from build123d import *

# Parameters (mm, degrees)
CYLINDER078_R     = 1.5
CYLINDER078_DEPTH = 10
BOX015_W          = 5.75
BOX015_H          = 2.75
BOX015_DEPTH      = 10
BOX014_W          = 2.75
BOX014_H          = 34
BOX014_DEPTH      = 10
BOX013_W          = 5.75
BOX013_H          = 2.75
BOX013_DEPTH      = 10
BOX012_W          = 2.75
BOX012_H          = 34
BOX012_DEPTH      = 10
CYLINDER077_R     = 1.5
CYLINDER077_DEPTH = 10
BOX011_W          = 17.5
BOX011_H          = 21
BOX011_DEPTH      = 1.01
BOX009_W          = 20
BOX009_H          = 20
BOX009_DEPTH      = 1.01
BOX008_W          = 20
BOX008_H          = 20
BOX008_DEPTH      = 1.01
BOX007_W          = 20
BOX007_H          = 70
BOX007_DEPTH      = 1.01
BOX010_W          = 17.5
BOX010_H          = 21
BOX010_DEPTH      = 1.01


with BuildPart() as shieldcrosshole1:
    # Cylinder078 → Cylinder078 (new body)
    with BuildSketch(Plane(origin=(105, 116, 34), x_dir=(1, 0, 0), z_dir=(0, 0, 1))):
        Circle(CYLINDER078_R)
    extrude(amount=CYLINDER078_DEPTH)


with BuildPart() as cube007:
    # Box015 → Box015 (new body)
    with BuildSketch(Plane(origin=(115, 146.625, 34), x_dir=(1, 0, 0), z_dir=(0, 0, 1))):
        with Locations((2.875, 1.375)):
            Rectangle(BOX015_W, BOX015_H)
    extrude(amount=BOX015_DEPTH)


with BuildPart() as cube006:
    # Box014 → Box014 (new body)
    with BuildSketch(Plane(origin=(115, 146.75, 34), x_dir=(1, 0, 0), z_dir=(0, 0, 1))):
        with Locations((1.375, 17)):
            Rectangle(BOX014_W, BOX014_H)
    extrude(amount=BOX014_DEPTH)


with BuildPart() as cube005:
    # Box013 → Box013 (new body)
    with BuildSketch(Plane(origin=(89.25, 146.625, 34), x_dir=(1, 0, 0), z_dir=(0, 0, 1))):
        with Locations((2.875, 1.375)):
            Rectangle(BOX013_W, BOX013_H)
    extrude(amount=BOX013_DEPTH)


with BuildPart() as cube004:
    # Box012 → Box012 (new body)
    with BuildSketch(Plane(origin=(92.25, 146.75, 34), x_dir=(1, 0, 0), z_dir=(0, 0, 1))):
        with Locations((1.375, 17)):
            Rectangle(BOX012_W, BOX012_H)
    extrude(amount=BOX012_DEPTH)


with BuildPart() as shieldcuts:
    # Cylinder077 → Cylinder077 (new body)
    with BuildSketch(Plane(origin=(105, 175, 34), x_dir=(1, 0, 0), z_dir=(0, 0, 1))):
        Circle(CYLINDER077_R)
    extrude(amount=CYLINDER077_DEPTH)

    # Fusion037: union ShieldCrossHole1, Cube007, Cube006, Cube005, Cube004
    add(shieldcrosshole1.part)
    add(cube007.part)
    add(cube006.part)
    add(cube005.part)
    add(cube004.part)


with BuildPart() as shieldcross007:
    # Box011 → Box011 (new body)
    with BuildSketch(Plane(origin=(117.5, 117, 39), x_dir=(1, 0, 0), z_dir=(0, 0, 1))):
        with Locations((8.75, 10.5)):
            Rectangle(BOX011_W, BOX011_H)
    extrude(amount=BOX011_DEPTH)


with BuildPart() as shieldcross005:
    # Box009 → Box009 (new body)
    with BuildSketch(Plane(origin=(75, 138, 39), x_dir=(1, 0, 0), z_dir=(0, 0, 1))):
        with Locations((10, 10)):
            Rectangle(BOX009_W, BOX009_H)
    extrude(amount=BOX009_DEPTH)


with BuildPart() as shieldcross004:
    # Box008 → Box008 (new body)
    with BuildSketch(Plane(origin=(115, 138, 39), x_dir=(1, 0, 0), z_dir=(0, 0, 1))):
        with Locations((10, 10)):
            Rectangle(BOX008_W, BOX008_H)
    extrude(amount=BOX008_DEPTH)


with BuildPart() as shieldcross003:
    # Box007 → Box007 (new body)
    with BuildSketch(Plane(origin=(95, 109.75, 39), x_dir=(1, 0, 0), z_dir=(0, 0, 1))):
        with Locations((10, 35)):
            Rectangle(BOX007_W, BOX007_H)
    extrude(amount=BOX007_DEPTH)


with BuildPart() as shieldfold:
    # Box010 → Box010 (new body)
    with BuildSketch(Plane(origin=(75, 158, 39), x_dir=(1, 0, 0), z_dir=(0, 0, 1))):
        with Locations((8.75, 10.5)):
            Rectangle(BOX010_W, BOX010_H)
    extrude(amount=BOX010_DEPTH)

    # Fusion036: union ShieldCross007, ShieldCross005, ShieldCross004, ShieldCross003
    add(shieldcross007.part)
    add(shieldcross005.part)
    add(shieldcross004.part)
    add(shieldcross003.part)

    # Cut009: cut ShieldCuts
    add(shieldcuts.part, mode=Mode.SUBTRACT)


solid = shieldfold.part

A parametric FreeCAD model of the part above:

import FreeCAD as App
import Part
import Sketcher
Q = App.Units.Quantity

doc = App.newDocument("Part")
body = doc.addObject("PartDesign::Body", "Body")

# Sketch on XY plane
sketch1 = body.newObject("Sketcher::SketchObject", "Sketch")
sketch1.AttachmentSupport = (doc.getObject("XY_Plane"), [""])
sketch1.MapMode = "FlatFace"
sketch1.AttachmentOffset = App.Placement(App.Vector(0, 0, 34), App.Rotation())
sketch1.addGeometry(Part.Circle(App.Vector(105, 116, 0), App.Vector(0, 0, 1), 1.5), False)
sketch1.addConstraint(Sketcher.Constraint("Diameter", 0, Q("3 mm")))
sketch1.addConstraint(Sketcher.Constraint("DistanceX", -1, 1, 0, 3, Q("105 mm")))
sketch1.addConstraint(Sketcher.Constraint("DistanceY", -1, 1, 0, 3, Q("116 mm")))
pad1 = body.newObject("PartDesign::Pad", "Pad")
pad1.Profile = sketch1
pad1.Length = 10
body2 = doc.addObject("PartDesign::Body", "Body001")

# Sketch on XY plane
sketch2 = body2.newObject("Sketcher::SketchObject", "Sketch001")
sketch2.AttachmentSupport = (doc.getObject("XY_Plane001"), [""])
sketch2.MapMode = "FlatFace"
sketch2.AttachmentOffset = App.Placement(App.Vector(0, 0, 34), App.Rotation())
sketch2.addGeometry(Part.LineSegment(App.Vector(115, 149.4, 0), App.Vector(115, 146.6, 0)), False)
sketch2.addGeometry(Part.LineSegment(App.Vector(115, 146.6, 0), App.Vector(120.8, 146.6, 0)), False)
sketch2.addGeometry(Part.LineSegment(App.Vector(120.8, 146.6, 0), App.Vector(120.8, 149.4, 0)), False)
sketch2.addGeometry(Part.LineSegment(App.Vector(120.8, 149.4, 0), App.Vector(115, 149.4, 0)), False)
sketch2.addConstraint(Sketcher.Constraint("Coincident", 0, 2, 1, 1))
sketch2.addConstraint(Sketcher.Constraint("Coincident", 1, 2, 2, 1))
sketch2.addConstraint(Sketcher.Constraint("Coincident", 2, 2, 3, 1))
sketch2.addConstraint(Sketcher.Constraint("Coincident", 3, 2, 0, 1))
sketch2.addConstraint(Sketcher.Constraint("Vertical", 0))
sketch2.addConstraint(Sketcher.Constraint("Horizontal", 1))
sketch2.addConstraint(Sketcher.Constraint("Vertical", 2))
sketch2.addConstraint(Sketcher.Constraint("Horizontal", 3))
sketch2.addConstraint(Sketcher.Constraint("DistanceX", -1, 1, 0, 2, Q("115 mm")))
sketch2.addConstraint(Sketcher.Constraint("DistanceX", 1, 1, 1, 2, Q("5.75 mm")))
sketch2.addConstraint(Sketcher.Constraint("DistanceY", 0, 2, 0, 1, Q("2.75 mm")))
sketch2.addConstraint(Sketcher.Constraint("DistanceY", -1, 1, 0, 2, Q("146.625 mm")))
pad2 = body2.newObject("PartDesign::Pad", "Pad001")
pad2.Profile = sketch2
pad2.Length = 10
body3 = doc.addObject("PartDesign::Body", "Body002")

# Sketch on XY plane
sketch3 = body3.newObject("Sketcher::SketchObject", "Sketch002")
sketch3.AttachmentSupport = (doc.getObject("XY_Plane002"), [""])
sketch3.MapMode = "FlatFace"
sketch3.AttachmentOffset = App.Placement(App.Vector(0, 0, 34), App.Rotation())
sketch3.addGeometry(Part.LineSegment(App.Vector(115, 180.8, 0), App.Vector(115, 146.8, 0)), False)
sketch3.addGeometry(Part.LineSegment(App.Vector(115, 146.8, 0), App.Vector(117.8, 146.8, 0)), False)
sketch3.addGeometry(Part.LineSegment(App.Vector(117.8, 146.8, 0), App.Vector(117.8, 180.8, 0)), False)
sketch3.addGeometry(Part.LineSegment(App.Vector(117.8, 180.8, 0), App.Vector(115, 180.8, 0)), False)
sketch3.addConstraint(Sketcher.Constraint("Coincident", 0, 2, 1, 1))
sketch3.addConstraint(Sketcher.Constraint("Coincident", 1, 2, 2, 1))
sketch3.addConstraint(Sketcher.Constraint("Coincident", 2, 2, 3, 1))
sketch3.addConstraint(Sketcher.Constraint("Coincident", 3, 2, 0, 1))
sketch3.addConstraint(Sketcher.Constraint("Vertical", 0))
sketch3.addConstraint(Sketcher.Constraint("Horizontal", 1))
sketch3.addConstraint(Sketcher.Constraint("Vertical", 2))
sketch3.addConstraint(Sketcher.Constraint("Horizontal", 3))
sketch3.addConstraint(Sketcher.Constraint("DistanceY", 0, 2, 0, 1, Q("34 mm")))
sketch3.addConstraint(Sketcher.Constraint("DistanceX", -1, 1, 0, 2, Q("115 mm")))
sketch3.addConstraint(Sketcher.Constraint("DistanceX", 1, 1, 1, 2, Q("2.75 mm")))
sketch3.addConstraint(Sketcher.Constraint("DistanceY", -1, 1, 0, 2, Q("146.75 mm")))
pad3 = body3.newObject("PartDesign::Pad", "Pad002")
pad3.Profile = sketch3
pad3.Length = 10
body4 = doc.addObject("PartDesign::Body", "Body003")

# Sketch on XY plane
sketch4 = body4.newObject("Sketcher::SketchObject", "Sketch003")
sketch4.AttachmentSupport = (doc.getObject("XY_Plane003"), [""])
sketch4.MapMode = "FlatFace"
sketch4.AttachmentOffset = App.Placement(App.Vector(0, 0, 34), App.Rotation())
sketch4.addGeometry(Part.LineSegment(App.Vector(89.2, 149.4, 0), App.Vector(89.2, 146.6, 0)), False)
sketch4.addGeometry(Part.LineSegment(App.Vector(89.2, 146.6, 0), App.Vector(95, 146.6, 0)), False)
sketch4.addGeometry(Part.LineSegment(App.Vector(95, 146.6, 0), App.Vector(95, 149.4, 0)), False)
sketch4.addGeometry(Part.LineSegment(App.Vector(95, 149.4, 0), App.Vector(89.2, 149.4, 0)), False)
sketch4.addConstraint(Sketcher.Constraint("Coincident", 0, 2, 1, 1))
sketch4.addConstraint(Sketcher.Constraint("Coincident", 1, 2, 2, 1))
sketch4.addConstraint(Sketcher.Constraint("Coincident", 2, 2, 3, 1))
sketch4.addConstraint(Sketcher.Constraint("Coincident", 3, 2, 0, 1))
sketch4.addConstraint(Sketcher.Constraint("Vertical", 0))
sketch4.addConstraint(Sketcher.Constraint("Horizontal", 1))
sketch4.addConstraint(Sketcher.Constraint("Vertical", 2))
sketch4.addConstraint(Sketcher.Constraint("Horizontal", 3))
sketch4.addConstraint(Sketcher.Constraint("DistanceX", -1, 1, 1, 2, Q("95 mm")))
sketch4.addConstraint(Sketcher.Constraint("DistanceX", 1, 1, 1, 2, Q("5.75 mm")))
sketch4.addConstraint(Sketcher.Constraint("DistanceY", 0, 2, 0, 1, Q("2.75 mm")))
sketch4.addConstraint(Sketcher.Constraint("DistanceY", -1, 1, 0, 2, Q("146.625 mm")))
pad4 = body4.newObject("PartDesign::Pad", "Pad003")
pad4.Profile = sketch4
pad4.Length = 10
body5 = doc.addObject("PartDesign::Body", "Body004")

# Sketch on XY plane
sketch5 = body5.newObject("Sketcher::SketchObject", "Sketch004")
sketch5.AttachmentSupport = (doc.getObject("XY_Plane004"), [""])
sketch5.MapMode = "FlatFace"
sketch5.AttachmentOffset = App.Placement(App.Vector(0, 0, 34), App.Rotation())
sketch5.addGeometry(Part.LineSegment(App.Vector(92.2, 180.8, 0), App.Vector(92.2, 146.8, 0)), False)
sketch5.addGeometry(Part.LineSegment(App.Vector(92.2, 146.8, 0), App.Vector(95, 146.8, 0)), False)
sketch5.addGeometry(Part.LineSegment(App.Vector(95, 146.8, 0), App.Vector(95, 180.8, 0)), False)
sketch5.addGeometry(Part.LineSegment(App.Vector(95, 180.8, 0), App.Vector(92.2, 180.8, 0)), False)
sketch5.addConstraint(Sketcher.Constraint("Coincident", 0, 2, 1, 1))
sketch5.addConstraint(Sketcher.Constraint("Coincident", 1, 2, 2, 1))
sketch5.addConstraint(Sketcher.Constraint("Coincident", 2, 2, 3, 1))
sketch5.addConstraint(Sketcher.Constraint("Coincident", 3, 2, 0, 1))
sketch5.addConstraint(Sketcher.Constraint("Vertical", 0))
sketch5.addConstraint(Sketcher.Constraint("Horizontal", 1))
sketch5.addConstraint(Sketcher.Constraint("Vertical", 2))
sketch5.addConstraint(Sketcher.Constraint("Horizontal", 3))
sketch5.addConstraint(Sketcher.Constraint("DistanceY", 0, 2, 0, 1, Q("34 mm")))
sketch5.addConstraint(Sketcher.Constraint("DistanceX", -1, 1, 1, 2, Q("95 mm")))
sketch5.addConstraint(Sketcher.Constraint("DistanceX", 1, 1, 1, 2, Q("2.75 mm")))
sketch5.addConstraint(Sketcher.Constraint("DistanceY", -1, 1, 0, 2, Q("146.75 mm")))
pad5 = body5.newObject("PartDesign::Pad", "Pad004")
pad5.Profile = sketch5
pad5.Length = 10
body6 = doc.addObject("PartDesign::Body", "Body005")
body6.AllowCompound = True

# Sketch on XY plane
sketch6 = body6.newObject("Sketcher::SketchObject", "Sketch005")
sketch6.AttachmentSupport = (doc.getObject("XY_Plane005"), [""])
sketch6.MapMode = "FlatFace"
sketch6.AttachmentOffset = App.Placement(App.Vector(0, 0, 34), App.Rotation())
sketch6.addGeometry(Part.Circle(App.Vector(105, 175, 0), App.Vector(0, 0, 1), 1.5), False)
sketch6.addConstraint(Sketcher.Constraint("Diameter", 0, Q("3 mm")))
sketch6.addConstraint(Sketcher.Constraint("DistanceX", -1, 1, 0, 3, Q("105 mm")))
sketch6.addConstraint(Sketcher.Constraint("DistanceY", -1, 1, 0, 3, Q("175 mm")))
pad6 = body6.newObject("PartDesign::Pad", "Pad005")
pad6.Profile = sketch6
pad6.Length = 10
doc.recompute()

boolean = body6.newObject("PartDesign::Boolean", "Boolean")
boolean.Type = "Fuse"
boolean.addObjects([body])
doc.recompute()

boolean2 = body6.newObject("PartDesign::Boolean", "Boolean001")
boolean2.Type = "Fuse"
boolean2.addObjects([body2])
doc.recompute()

boolean3 = body6.newObject("PartDesign::Boolean", "Boolean002")
boolean3.Type = "Fuse"
boolean3.addObjects([body3])
doc.recompute()

boolean4 = body6.newObject("PartDesign::Boolean", "Boolean003")
boolean4.Type = "Fuse"
boolean4.addObjects([body4])
doc.recompute()

boolean5 = body6.newObject("PartDesign::Boolean", "Boolean004")
boolean5.Type = "Fuse"
boolean5.addObjects([body5])
body7 = doc.addObject("PartDesign::Body", "Body006")

# Sketch on XY plane
sketch7 = body7.newObject("Sketcher::SketchObject", "Sketch006")
sketch7.AttachmentSupport = (doc.getObject("XY_Plane006"), [""])
sketch7.MapMode = "FlatFace"
sketch7.AttachmentOffset = App.Placement(App.Vector(0, 0, 39), App.Rotation())
sketch7.addGeometry(Part.LineSegment(App.Vector(118, 138, 0), App.Vector(118, 117, 0)), False)
sketch7.addGeometry(Part.LineSegment(App.Vector(118, 117, 0), App.Vector(135, 117, 0)), False)
sketch7.addGeometry(Part.LineSegment(App.Vector(135, 117, 0), App.Vector(135, 138, 0)), False)
sketch7.addGeometry(Part.LineSegment(App.Vector(135, 138, 0), App.Vector(118, 138, 0)), False)
sketch7.addConstraint(Sketcher.Constraint("Coincident", 0, 2, 1, 1))
sketch7.addConstraint(Sketcher.Constraint("Coincident", 1, 2, 2, 1))
sketch7.addConstraint(Sketcher.Constraint("Coincident", 2, 2, 3, 1))
sketch7.addConstraint(Sketcher.Constraint("Coincident", 3, 2, 0, 1))
sketch7.addConstraint(Sketcher.Constraint("Vertical", 0))
sketch7.addConstraint(Sketcher.Constraint("Horizontal", 1))
sketch7.addConstraint(Sketcher.Constraint("Vertical", 2))
sketch7.addConstraint(Sketcher.Constraint("Horizontal", 3))
sketch7.addConstraint(Sketcher.Constraint("DistanceY", 0, 2, 0, 1, Q("21 mm")))
sketch7.addConstraint(Sketcher.Constraint("DistanceX", 1, 1, 1, 2, Q("17.5 mm")))
sketch7.addConstraint(Sketcher.Constraint("DistanceY", -1, 1, 0, 2, Q("117 mm")))
sketch7.addConstraint(Sketcher.Constraint("DistanceX", -1, 1, 1, 2, Q("135 mm")))
pad7 = body7.newObject("PartDesign::Pad", "Pad006")
pad7.Profile = sketch7
pad7.Length = 1.01
body8 = doc.addObject("PartDesign::Body", "Body007")

# Sketch on XY plane
sketch8 = body8.newObject("Sketcher::SketchObject", "Sketch007")
sketch8.AttachmentSupport = (doc.getObject("XY_Plane007"), [""])
sketch8.MapMode = "FlatFace"
sketch8.AttachmentOffset = App.Placement(App.Vector(0, 0, 39), App.Rotation())
sketch8.addGeometry(Part.LineSegment(App.Vector(75, 158, 0), App.Vector(75, 138, 0)), False)
sketch8.addGeometry(Part.LineSegment(App.Vector(75, 138, 0), App.Vector(95, 138, 0)), False)
sketch8.addGeometry(Part.LineSegment(App.Vector(95, 138, 0), App.Vector(95, 158, 0)), False)
sketch8.addGeometry(Part.LineSegment(App.Vector(95, 158, 0), App.Vector(75, 158, 0)), False)
sketch8.addConstraint(Sketcher.Constraint("Coincident", 0, 2, 1, 1))
sketch8.addConstraint(Sketcher.Constraint("Coincident", 1, 2, 2, 1))
sketch8.addConstraint(Sketcher.Constraint("Coincident", 2, 2, 3, 1))
sketch8.addConstraint(Sketcher.Constraint("Coincident", 3, 2, 0, 1))
sketch8.addConstraint(Sketcher.Constraint("Vertical", 0))
sketch8.addConstraint(Sketcher.Constraint("Horizontal", 1))
sketch8.addConstraint(Sketcher.Constraint("Vertical", 2))
sketch8.addConstraint(Sketcher.Constraint("Horizontal", 3))
sketch8.addConstraint(Sketcher.Constraint("Equal", 3, 0))
sketch8.addConstraint(Sketcher.Constraint("DistanceX", 1, 1, 1, 2, Q("20 mm")))
sketch8.addConstraint(Sketcher.Constraint("DistanceX", -1, 1, 0, 2, Q("75 mm")))
sketch8.addConstraint(Sketcher.Constraint("DistanceY", -1, 1, 0, 2, Q("138 mm")))
pad8 = body8.newObject("PartDesign::Pad", "Pad007")
pad8.Profile = sketch8
pad8.Length = 1.01
body9 = doc.addObject("PartDesign::Body", "Body008")

# Sketch on XY plane
sketch9 = body9.newObject("Sketcher::SketchObject", "Sketch008")
sketch9.AttachmentSupport = (doc.getObject("XY_Plane008"), [""])
sketch9.MapMode = "FlatFace"
sketch9.AttachmentOffset = App.Placement(App.Vector(0, 0, 39), App.Rotation())
sketch9.addGeometry(Part.LineSegment(App.Vector(115, 158, 0), App.Vector(115, 138, 0)), False)
sketch9.addGeometry(Part.LineSegment(App.Vector(115, 138, 0), App.Vector(135, 138, 0)), False)
sketch9.addGeometry(Part.LineSegment(App.Vector(135, 138, 0), App.Vector(135, 158, 0)), False)
sketch9.addGeometry(Part.LineSegment(App.Vector(135, 158, 0), App.Vector(115, 158, 0)), False)
sketch9.addConstraint(Sketcher.Constraint("Coincident", 0, 2, 1, 1))
sketch9.addConstraint(Sketcher.Constraint("Coincident", 1, 2, 2, 1))
sketch9.addConstraint(Sketcher.Constraint("Coincident", 2, 2, 3, 1))
sketch9.addConstraint(Sketcher.Constraint("Coincident", 3, 2, 0, 1))
sketch9.addConstraint(Sketcher.Constraint("Vertical", 0))
sketch9.addConstraint(Sketcher.Constraint("Horizontal", 1))
sketch9.addConstraint(Sketcher.Constraint("Vertical", 2))
sketch9.addConstraint(Sketcher.Constraint("Horizontal", 3))
sketch9.addConstraint(Sketcher.Constraint("Equal", 3, 0))
sketch9.addConstraint(Sketcher.Constraint("DistanceX", 1, 1, 1, 2, Q("20 mm")))
sketch9.addConstraint(Sketcher.Constraint("DistanceX", -1, 1, 0, 2, Q("115 mm")))
sketch9.addConstraint(Sketcher.Constraint("DistanceY", -1, 1, 0, 2, Q("138 mm")))
pad9 = body9.newObject("PartDesign::Pad", "Pad008")
pad9.Profile = sketch9
pad9.Length = 1.01
body10 = doc.addObject("PartDesign::Body", "Body009")

# Sketch on XY plane
sketch10 = body10.newObject("Sketcher::SketchObject", "Sketch009")
sketch10.AttachmentSupport = (doc.getObject("XY_Plane009"), [""])
sketch10.MapMode = "FlatFace"
sketch10.AttachmentOffset = App.Placement(App.Vector(0, 0, 39), App.Rotation())
sketch10.addGeometry(Part.LineSegment(App.Vector(95, 180, 0), App.Vector(95, 110, 0)), False)
sketch10.addGeometry(Part.LineSegment(App.Vector(95, 110, 0), App.Vector(115, 110, 0)), False)
sketch10.addGeometry(Part.LineSegment(App.Vector(115, 110, 0), App.Vector(115, 180, 0)), False)
sketch10.addGeometry(Part.LineSegment(App.Vector(115, 180, 0), App.Vector(95, 180, 0)), False)
sketch10.addConstraint(Sketcher.Constraint("Coincident", 0, 2, 1, 1))
sketch10.addConstraint(Sketcher.Constraint("Coincident", 1, 2, 2, 1))
sketch10.addConstraint(Sketcher.Constraint("Coincident", 2, 2, 3, 1))
sketch10.addConstraint(Sketcher.Constraint("Coincident", 3, 2, 0, 1))
sketch10.addConstraint(Sketcher.Constraint("Vertical", 0))
sketch10.addConstraint(Sketcher.Constraint("Horizontal", 1))
sketch10.addConstraint(Sketcher.Constraint("Vertical", 2))
sketch10.addConstraint(Sketcher.Constraint("Horizontal", 3))
sketch10.addConstraint(Sketcher.Constraint("DistanceX", 1, 1, 1, 2, Q("20 mm")))
sketch10.addConstraint(Sketcher.Constraint("DistanceY", 0, 2, 0, 1, Q("70 mm")))
sketch10.addConstraint(Sketcher.Constraint("DistanceX", -1, 1, 0, 2, Q("95 mm")))
sketch10.addConstraint(Sketcher.Constraint("DistanceY", -1, 1, 0, 2, Q("109.75 mm")))
pad10 = body10.newObject("PartDesign::Pad", "Pad009")
pad10.Profile = sketch10
pad10.Length = 1.01
body11 = doc.addObject("PartDesign::Body", "Body010")
body11.AllowCompound = True

# Sketch on XY plane
sketch11 = body11.newObject("Sketcher::SketchObject", "Sketch010")
sketch11.AttachmentSupport = (doc.getObject("XY_Plane010"), [""])
sketch11.MapMode = "FlatFace"
sketch11.AttachmentOffset = App.Placement(App.Vector(0, 0, 39), App.Rotation())
sketch11.addGeometry(Part.LineSegment(App.Vector(75, 179, 0), App.Vector(75, 158, 0)), False)
sketch11.addGeometry(Part.LineSegment(App.Vector(75, 158, 0), App.Vector(92, 158, 0)), False)
sketch11.addGeometry(Part.LineSegment(App.Vector(92, 158, 0), App.Vector(92, 179, 0)), False)
sketch11.addGeometry(Part.LineSegment(App.Vector(92, 179, 0), App.Vector(75, 179, 0)), False)
sketch11.addConstraint(Sketcher.Constraint("Coincident", 0, 2, 1, 1))
sketch11.addConstraint(Sketcher.Constraint("Coincident", 1, 2, 2, 1))
sketch11.addConstraint(Sketcher.Constraint("Coincident", 2, 2, 3, 1))
sketch11.addConstraint(Sketcher.Constraint("Coincident", 3, 2, 0, 1))
sketch11.addConstraint(Sketcher.Constraint("Vertical", 0))
sketch11.addConstraint(Sketcher.Constraint("Horizontal", 1))
sketch11.addConstraint(Sketcher.Constraint("Vertical", 2))
sketch11.addConstraint(Sketcher.Constraint("Horizontal", 3))
sketch11.addConstraint(Sketcher.Constraint("DistanceY", 0, 2, 0, 1, Q("21 mm")))
sketch11.addConstraint(Sketcher.Constraint("DistanceX", 1, 1, 1, 2, Q("17.5 mm")))
sketch11.addConstraint(Sketcher.Constraint("DistanceX", -1, 1, 0, 2, Q("75 mm")))
sketch11.addConstraint(Sketcher.Constraint("DistanceY", -1, 1, 0, 2, Q("158 mm")))
pad11 = body11.newObject("PartDesign::Pad", "Pad010")
pad11.Profile = sketch11
pad11.Length = 1.01
doc.recompute()

boolean6 = body11.newObject("PartDesign::Boolean", "Boolean005")
boolean6.Type = "Fuse"
boolean6.addObjects([body7])
doc.recompute()

boolean7 = body11.newObject("PartDesign::Boolean", "Boolean006")
boolean7.Type = "Fuse"
boolean7.addObjects([body8])
doc.recompute()

boolean8 = body11.newObject("PartDesign::Boolean", "Boolean007")
boolean8.Type = "Fuse"
boolean8.addObjects([body9])
doc.recompute()

boolean9 = body11.newObject("PartDesign::Boolean", "Boolean008")
boolean9.Type = "Fuse"
boolean9.addObjects([body10])
doc.recompute()

boolean10 = body11.newObject("PartDesign::Boolean", "Boolean009")
boolean10.Type = "Cut"
boolean10.addObjects([body6])

doc.recompute()
